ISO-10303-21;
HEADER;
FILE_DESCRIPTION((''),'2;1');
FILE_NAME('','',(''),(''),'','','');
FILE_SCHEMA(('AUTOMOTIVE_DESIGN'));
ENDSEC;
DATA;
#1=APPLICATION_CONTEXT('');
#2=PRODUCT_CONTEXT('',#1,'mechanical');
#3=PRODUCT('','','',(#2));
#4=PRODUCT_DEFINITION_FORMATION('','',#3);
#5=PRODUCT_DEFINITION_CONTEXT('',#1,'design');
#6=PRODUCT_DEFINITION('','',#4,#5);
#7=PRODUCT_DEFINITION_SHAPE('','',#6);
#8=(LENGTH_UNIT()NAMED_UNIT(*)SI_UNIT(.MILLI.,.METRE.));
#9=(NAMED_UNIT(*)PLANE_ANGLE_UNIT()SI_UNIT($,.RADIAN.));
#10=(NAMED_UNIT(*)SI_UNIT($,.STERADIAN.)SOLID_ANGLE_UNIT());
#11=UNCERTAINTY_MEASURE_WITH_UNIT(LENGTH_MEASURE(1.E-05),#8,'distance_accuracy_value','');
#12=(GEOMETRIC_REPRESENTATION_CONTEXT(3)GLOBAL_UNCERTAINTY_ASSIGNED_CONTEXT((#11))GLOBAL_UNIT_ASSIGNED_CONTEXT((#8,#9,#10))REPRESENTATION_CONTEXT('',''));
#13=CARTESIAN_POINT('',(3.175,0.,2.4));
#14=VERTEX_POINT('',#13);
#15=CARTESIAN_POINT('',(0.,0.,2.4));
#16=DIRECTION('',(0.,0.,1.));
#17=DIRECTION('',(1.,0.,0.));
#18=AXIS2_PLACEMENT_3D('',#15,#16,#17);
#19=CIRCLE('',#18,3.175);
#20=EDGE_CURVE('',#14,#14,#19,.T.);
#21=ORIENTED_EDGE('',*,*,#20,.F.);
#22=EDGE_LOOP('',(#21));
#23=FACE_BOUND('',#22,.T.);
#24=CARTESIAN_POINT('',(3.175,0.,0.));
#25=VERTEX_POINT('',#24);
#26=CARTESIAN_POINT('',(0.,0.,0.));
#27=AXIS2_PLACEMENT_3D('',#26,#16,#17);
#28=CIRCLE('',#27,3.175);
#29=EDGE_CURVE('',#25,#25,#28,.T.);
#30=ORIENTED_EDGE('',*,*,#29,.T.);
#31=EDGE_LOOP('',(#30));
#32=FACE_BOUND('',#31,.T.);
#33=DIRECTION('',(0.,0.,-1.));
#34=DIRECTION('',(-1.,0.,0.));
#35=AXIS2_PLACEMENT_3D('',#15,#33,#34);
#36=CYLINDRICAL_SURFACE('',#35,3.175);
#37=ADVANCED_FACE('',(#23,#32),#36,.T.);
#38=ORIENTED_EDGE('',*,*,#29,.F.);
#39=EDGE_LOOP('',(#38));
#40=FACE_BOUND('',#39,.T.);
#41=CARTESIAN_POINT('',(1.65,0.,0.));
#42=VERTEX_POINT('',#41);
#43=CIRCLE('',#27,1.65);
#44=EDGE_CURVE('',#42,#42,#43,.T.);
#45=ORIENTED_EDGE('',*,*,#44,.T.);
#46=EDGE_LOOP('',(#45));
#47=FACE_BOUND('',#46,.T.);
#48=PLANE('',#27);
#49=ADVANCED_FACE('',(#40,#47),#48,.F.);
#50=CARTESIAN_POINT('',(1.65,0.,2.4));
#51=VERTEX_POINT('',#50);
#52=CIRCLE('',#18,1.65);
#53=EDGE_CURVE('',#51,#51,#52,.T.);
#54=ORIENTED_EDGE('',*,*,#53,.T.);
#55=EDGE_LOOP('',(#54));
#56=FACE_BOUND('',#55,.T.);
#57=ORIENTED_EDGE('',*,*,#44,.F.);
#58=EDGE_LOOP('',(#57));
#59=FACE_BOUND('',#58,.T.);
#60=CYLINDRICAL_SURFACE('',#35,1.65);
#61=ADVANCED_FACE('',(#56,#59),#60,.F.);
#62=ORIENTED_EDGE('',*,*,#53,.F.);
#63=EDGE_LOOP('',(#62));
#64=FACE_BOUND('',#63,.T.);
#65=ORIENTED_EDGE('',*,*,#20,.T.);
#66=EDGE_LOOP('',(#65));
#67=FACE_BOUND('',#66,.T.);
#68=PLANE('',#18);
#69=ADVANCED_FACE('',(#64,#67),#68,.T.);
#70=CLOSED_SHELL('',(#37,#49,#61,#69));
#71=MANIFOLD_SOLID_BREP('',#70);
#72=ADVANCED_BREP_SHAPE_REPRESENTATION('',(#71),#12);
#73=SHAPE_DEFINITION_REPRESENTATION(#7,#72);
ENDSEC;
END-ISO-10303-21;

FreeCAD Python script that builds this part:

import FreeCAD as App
import Part
import Sketcher
from FreeCAD import Vector

doc = App.newDocument("Part")
params = doc.addObject("Spreadsheet::Sheet", "Params")
for row, (alias, value) in enumerate([
    ("sketch1_diameter", "6.35 mm"),
    ("pad1_length", "2.4 mm"),
    ("sketch2_diameter", "3.3 mm"),
    ("pocket1_length", "2.4 mm"),
], start=1):
    params.set(f"A{row}", alias)
    params.set(f"B{row}", "=" + value)
    params.setAlias(f"B{row}", alias)

body = doc.addObject("PartDesign::Body", "Body")

# Sketch on XY plane
sketch1 = body.newObject("Sketcher::SketchObject", "Sketch")
sketch1.AttachmentSupport = (doc.getObject("XY_Plane"), [""])
sketch1.MapMode = "FlatFace"
sketch1.addGeometry(Part.Circle(Vector(0, 0, 0), Vector(0, 0, 1), 3.175), False)
sketch1.addConstraint([
    Sketcher.Constraint("Coincident", 0, 3, -1, 1),
    Sketcher.Constraint("Diameter", 0, 6.35),
])
sketch1.setExpression("Constraints[1]", "Params.sketch1_diameter")
pad1 = body.newObject("PartDesign::Pad", "Pad")
pad1.Profile = sketch1
pad1.setExpression("Length", "Params.pad1_length")

# Sketch on XY plane
sketch2 = body.newObject("Sketcher::SketchObject", "Sketch001")
sketch2.AttachmentSupport = (doc.getObject("XY_Plane"), [""])
sketch2.MapMode = "FlatFace"
sketch2.addGeometry(Part.Circle(Vector(0, 0, 0), Vector(0, 0, 1), 1.65), False)
sketch2.addConstraint([
    Sketcher.Constraint("Coincident", 0, 3, -1, 1),
    Sketcher.Constraint("Diameter", 0, 3.3),
])
sketch2.setExpression("Constraints[1]", "Params.sketch2_diameter")
pocket1 = body.newObject("PartDesign::Pocket", "Pocket")
pocket1.Profile = sketch2
pocket1.setExpression("Length", "Params.pocket1_length")
pocket1.Reversed = True

doc.recompute()
